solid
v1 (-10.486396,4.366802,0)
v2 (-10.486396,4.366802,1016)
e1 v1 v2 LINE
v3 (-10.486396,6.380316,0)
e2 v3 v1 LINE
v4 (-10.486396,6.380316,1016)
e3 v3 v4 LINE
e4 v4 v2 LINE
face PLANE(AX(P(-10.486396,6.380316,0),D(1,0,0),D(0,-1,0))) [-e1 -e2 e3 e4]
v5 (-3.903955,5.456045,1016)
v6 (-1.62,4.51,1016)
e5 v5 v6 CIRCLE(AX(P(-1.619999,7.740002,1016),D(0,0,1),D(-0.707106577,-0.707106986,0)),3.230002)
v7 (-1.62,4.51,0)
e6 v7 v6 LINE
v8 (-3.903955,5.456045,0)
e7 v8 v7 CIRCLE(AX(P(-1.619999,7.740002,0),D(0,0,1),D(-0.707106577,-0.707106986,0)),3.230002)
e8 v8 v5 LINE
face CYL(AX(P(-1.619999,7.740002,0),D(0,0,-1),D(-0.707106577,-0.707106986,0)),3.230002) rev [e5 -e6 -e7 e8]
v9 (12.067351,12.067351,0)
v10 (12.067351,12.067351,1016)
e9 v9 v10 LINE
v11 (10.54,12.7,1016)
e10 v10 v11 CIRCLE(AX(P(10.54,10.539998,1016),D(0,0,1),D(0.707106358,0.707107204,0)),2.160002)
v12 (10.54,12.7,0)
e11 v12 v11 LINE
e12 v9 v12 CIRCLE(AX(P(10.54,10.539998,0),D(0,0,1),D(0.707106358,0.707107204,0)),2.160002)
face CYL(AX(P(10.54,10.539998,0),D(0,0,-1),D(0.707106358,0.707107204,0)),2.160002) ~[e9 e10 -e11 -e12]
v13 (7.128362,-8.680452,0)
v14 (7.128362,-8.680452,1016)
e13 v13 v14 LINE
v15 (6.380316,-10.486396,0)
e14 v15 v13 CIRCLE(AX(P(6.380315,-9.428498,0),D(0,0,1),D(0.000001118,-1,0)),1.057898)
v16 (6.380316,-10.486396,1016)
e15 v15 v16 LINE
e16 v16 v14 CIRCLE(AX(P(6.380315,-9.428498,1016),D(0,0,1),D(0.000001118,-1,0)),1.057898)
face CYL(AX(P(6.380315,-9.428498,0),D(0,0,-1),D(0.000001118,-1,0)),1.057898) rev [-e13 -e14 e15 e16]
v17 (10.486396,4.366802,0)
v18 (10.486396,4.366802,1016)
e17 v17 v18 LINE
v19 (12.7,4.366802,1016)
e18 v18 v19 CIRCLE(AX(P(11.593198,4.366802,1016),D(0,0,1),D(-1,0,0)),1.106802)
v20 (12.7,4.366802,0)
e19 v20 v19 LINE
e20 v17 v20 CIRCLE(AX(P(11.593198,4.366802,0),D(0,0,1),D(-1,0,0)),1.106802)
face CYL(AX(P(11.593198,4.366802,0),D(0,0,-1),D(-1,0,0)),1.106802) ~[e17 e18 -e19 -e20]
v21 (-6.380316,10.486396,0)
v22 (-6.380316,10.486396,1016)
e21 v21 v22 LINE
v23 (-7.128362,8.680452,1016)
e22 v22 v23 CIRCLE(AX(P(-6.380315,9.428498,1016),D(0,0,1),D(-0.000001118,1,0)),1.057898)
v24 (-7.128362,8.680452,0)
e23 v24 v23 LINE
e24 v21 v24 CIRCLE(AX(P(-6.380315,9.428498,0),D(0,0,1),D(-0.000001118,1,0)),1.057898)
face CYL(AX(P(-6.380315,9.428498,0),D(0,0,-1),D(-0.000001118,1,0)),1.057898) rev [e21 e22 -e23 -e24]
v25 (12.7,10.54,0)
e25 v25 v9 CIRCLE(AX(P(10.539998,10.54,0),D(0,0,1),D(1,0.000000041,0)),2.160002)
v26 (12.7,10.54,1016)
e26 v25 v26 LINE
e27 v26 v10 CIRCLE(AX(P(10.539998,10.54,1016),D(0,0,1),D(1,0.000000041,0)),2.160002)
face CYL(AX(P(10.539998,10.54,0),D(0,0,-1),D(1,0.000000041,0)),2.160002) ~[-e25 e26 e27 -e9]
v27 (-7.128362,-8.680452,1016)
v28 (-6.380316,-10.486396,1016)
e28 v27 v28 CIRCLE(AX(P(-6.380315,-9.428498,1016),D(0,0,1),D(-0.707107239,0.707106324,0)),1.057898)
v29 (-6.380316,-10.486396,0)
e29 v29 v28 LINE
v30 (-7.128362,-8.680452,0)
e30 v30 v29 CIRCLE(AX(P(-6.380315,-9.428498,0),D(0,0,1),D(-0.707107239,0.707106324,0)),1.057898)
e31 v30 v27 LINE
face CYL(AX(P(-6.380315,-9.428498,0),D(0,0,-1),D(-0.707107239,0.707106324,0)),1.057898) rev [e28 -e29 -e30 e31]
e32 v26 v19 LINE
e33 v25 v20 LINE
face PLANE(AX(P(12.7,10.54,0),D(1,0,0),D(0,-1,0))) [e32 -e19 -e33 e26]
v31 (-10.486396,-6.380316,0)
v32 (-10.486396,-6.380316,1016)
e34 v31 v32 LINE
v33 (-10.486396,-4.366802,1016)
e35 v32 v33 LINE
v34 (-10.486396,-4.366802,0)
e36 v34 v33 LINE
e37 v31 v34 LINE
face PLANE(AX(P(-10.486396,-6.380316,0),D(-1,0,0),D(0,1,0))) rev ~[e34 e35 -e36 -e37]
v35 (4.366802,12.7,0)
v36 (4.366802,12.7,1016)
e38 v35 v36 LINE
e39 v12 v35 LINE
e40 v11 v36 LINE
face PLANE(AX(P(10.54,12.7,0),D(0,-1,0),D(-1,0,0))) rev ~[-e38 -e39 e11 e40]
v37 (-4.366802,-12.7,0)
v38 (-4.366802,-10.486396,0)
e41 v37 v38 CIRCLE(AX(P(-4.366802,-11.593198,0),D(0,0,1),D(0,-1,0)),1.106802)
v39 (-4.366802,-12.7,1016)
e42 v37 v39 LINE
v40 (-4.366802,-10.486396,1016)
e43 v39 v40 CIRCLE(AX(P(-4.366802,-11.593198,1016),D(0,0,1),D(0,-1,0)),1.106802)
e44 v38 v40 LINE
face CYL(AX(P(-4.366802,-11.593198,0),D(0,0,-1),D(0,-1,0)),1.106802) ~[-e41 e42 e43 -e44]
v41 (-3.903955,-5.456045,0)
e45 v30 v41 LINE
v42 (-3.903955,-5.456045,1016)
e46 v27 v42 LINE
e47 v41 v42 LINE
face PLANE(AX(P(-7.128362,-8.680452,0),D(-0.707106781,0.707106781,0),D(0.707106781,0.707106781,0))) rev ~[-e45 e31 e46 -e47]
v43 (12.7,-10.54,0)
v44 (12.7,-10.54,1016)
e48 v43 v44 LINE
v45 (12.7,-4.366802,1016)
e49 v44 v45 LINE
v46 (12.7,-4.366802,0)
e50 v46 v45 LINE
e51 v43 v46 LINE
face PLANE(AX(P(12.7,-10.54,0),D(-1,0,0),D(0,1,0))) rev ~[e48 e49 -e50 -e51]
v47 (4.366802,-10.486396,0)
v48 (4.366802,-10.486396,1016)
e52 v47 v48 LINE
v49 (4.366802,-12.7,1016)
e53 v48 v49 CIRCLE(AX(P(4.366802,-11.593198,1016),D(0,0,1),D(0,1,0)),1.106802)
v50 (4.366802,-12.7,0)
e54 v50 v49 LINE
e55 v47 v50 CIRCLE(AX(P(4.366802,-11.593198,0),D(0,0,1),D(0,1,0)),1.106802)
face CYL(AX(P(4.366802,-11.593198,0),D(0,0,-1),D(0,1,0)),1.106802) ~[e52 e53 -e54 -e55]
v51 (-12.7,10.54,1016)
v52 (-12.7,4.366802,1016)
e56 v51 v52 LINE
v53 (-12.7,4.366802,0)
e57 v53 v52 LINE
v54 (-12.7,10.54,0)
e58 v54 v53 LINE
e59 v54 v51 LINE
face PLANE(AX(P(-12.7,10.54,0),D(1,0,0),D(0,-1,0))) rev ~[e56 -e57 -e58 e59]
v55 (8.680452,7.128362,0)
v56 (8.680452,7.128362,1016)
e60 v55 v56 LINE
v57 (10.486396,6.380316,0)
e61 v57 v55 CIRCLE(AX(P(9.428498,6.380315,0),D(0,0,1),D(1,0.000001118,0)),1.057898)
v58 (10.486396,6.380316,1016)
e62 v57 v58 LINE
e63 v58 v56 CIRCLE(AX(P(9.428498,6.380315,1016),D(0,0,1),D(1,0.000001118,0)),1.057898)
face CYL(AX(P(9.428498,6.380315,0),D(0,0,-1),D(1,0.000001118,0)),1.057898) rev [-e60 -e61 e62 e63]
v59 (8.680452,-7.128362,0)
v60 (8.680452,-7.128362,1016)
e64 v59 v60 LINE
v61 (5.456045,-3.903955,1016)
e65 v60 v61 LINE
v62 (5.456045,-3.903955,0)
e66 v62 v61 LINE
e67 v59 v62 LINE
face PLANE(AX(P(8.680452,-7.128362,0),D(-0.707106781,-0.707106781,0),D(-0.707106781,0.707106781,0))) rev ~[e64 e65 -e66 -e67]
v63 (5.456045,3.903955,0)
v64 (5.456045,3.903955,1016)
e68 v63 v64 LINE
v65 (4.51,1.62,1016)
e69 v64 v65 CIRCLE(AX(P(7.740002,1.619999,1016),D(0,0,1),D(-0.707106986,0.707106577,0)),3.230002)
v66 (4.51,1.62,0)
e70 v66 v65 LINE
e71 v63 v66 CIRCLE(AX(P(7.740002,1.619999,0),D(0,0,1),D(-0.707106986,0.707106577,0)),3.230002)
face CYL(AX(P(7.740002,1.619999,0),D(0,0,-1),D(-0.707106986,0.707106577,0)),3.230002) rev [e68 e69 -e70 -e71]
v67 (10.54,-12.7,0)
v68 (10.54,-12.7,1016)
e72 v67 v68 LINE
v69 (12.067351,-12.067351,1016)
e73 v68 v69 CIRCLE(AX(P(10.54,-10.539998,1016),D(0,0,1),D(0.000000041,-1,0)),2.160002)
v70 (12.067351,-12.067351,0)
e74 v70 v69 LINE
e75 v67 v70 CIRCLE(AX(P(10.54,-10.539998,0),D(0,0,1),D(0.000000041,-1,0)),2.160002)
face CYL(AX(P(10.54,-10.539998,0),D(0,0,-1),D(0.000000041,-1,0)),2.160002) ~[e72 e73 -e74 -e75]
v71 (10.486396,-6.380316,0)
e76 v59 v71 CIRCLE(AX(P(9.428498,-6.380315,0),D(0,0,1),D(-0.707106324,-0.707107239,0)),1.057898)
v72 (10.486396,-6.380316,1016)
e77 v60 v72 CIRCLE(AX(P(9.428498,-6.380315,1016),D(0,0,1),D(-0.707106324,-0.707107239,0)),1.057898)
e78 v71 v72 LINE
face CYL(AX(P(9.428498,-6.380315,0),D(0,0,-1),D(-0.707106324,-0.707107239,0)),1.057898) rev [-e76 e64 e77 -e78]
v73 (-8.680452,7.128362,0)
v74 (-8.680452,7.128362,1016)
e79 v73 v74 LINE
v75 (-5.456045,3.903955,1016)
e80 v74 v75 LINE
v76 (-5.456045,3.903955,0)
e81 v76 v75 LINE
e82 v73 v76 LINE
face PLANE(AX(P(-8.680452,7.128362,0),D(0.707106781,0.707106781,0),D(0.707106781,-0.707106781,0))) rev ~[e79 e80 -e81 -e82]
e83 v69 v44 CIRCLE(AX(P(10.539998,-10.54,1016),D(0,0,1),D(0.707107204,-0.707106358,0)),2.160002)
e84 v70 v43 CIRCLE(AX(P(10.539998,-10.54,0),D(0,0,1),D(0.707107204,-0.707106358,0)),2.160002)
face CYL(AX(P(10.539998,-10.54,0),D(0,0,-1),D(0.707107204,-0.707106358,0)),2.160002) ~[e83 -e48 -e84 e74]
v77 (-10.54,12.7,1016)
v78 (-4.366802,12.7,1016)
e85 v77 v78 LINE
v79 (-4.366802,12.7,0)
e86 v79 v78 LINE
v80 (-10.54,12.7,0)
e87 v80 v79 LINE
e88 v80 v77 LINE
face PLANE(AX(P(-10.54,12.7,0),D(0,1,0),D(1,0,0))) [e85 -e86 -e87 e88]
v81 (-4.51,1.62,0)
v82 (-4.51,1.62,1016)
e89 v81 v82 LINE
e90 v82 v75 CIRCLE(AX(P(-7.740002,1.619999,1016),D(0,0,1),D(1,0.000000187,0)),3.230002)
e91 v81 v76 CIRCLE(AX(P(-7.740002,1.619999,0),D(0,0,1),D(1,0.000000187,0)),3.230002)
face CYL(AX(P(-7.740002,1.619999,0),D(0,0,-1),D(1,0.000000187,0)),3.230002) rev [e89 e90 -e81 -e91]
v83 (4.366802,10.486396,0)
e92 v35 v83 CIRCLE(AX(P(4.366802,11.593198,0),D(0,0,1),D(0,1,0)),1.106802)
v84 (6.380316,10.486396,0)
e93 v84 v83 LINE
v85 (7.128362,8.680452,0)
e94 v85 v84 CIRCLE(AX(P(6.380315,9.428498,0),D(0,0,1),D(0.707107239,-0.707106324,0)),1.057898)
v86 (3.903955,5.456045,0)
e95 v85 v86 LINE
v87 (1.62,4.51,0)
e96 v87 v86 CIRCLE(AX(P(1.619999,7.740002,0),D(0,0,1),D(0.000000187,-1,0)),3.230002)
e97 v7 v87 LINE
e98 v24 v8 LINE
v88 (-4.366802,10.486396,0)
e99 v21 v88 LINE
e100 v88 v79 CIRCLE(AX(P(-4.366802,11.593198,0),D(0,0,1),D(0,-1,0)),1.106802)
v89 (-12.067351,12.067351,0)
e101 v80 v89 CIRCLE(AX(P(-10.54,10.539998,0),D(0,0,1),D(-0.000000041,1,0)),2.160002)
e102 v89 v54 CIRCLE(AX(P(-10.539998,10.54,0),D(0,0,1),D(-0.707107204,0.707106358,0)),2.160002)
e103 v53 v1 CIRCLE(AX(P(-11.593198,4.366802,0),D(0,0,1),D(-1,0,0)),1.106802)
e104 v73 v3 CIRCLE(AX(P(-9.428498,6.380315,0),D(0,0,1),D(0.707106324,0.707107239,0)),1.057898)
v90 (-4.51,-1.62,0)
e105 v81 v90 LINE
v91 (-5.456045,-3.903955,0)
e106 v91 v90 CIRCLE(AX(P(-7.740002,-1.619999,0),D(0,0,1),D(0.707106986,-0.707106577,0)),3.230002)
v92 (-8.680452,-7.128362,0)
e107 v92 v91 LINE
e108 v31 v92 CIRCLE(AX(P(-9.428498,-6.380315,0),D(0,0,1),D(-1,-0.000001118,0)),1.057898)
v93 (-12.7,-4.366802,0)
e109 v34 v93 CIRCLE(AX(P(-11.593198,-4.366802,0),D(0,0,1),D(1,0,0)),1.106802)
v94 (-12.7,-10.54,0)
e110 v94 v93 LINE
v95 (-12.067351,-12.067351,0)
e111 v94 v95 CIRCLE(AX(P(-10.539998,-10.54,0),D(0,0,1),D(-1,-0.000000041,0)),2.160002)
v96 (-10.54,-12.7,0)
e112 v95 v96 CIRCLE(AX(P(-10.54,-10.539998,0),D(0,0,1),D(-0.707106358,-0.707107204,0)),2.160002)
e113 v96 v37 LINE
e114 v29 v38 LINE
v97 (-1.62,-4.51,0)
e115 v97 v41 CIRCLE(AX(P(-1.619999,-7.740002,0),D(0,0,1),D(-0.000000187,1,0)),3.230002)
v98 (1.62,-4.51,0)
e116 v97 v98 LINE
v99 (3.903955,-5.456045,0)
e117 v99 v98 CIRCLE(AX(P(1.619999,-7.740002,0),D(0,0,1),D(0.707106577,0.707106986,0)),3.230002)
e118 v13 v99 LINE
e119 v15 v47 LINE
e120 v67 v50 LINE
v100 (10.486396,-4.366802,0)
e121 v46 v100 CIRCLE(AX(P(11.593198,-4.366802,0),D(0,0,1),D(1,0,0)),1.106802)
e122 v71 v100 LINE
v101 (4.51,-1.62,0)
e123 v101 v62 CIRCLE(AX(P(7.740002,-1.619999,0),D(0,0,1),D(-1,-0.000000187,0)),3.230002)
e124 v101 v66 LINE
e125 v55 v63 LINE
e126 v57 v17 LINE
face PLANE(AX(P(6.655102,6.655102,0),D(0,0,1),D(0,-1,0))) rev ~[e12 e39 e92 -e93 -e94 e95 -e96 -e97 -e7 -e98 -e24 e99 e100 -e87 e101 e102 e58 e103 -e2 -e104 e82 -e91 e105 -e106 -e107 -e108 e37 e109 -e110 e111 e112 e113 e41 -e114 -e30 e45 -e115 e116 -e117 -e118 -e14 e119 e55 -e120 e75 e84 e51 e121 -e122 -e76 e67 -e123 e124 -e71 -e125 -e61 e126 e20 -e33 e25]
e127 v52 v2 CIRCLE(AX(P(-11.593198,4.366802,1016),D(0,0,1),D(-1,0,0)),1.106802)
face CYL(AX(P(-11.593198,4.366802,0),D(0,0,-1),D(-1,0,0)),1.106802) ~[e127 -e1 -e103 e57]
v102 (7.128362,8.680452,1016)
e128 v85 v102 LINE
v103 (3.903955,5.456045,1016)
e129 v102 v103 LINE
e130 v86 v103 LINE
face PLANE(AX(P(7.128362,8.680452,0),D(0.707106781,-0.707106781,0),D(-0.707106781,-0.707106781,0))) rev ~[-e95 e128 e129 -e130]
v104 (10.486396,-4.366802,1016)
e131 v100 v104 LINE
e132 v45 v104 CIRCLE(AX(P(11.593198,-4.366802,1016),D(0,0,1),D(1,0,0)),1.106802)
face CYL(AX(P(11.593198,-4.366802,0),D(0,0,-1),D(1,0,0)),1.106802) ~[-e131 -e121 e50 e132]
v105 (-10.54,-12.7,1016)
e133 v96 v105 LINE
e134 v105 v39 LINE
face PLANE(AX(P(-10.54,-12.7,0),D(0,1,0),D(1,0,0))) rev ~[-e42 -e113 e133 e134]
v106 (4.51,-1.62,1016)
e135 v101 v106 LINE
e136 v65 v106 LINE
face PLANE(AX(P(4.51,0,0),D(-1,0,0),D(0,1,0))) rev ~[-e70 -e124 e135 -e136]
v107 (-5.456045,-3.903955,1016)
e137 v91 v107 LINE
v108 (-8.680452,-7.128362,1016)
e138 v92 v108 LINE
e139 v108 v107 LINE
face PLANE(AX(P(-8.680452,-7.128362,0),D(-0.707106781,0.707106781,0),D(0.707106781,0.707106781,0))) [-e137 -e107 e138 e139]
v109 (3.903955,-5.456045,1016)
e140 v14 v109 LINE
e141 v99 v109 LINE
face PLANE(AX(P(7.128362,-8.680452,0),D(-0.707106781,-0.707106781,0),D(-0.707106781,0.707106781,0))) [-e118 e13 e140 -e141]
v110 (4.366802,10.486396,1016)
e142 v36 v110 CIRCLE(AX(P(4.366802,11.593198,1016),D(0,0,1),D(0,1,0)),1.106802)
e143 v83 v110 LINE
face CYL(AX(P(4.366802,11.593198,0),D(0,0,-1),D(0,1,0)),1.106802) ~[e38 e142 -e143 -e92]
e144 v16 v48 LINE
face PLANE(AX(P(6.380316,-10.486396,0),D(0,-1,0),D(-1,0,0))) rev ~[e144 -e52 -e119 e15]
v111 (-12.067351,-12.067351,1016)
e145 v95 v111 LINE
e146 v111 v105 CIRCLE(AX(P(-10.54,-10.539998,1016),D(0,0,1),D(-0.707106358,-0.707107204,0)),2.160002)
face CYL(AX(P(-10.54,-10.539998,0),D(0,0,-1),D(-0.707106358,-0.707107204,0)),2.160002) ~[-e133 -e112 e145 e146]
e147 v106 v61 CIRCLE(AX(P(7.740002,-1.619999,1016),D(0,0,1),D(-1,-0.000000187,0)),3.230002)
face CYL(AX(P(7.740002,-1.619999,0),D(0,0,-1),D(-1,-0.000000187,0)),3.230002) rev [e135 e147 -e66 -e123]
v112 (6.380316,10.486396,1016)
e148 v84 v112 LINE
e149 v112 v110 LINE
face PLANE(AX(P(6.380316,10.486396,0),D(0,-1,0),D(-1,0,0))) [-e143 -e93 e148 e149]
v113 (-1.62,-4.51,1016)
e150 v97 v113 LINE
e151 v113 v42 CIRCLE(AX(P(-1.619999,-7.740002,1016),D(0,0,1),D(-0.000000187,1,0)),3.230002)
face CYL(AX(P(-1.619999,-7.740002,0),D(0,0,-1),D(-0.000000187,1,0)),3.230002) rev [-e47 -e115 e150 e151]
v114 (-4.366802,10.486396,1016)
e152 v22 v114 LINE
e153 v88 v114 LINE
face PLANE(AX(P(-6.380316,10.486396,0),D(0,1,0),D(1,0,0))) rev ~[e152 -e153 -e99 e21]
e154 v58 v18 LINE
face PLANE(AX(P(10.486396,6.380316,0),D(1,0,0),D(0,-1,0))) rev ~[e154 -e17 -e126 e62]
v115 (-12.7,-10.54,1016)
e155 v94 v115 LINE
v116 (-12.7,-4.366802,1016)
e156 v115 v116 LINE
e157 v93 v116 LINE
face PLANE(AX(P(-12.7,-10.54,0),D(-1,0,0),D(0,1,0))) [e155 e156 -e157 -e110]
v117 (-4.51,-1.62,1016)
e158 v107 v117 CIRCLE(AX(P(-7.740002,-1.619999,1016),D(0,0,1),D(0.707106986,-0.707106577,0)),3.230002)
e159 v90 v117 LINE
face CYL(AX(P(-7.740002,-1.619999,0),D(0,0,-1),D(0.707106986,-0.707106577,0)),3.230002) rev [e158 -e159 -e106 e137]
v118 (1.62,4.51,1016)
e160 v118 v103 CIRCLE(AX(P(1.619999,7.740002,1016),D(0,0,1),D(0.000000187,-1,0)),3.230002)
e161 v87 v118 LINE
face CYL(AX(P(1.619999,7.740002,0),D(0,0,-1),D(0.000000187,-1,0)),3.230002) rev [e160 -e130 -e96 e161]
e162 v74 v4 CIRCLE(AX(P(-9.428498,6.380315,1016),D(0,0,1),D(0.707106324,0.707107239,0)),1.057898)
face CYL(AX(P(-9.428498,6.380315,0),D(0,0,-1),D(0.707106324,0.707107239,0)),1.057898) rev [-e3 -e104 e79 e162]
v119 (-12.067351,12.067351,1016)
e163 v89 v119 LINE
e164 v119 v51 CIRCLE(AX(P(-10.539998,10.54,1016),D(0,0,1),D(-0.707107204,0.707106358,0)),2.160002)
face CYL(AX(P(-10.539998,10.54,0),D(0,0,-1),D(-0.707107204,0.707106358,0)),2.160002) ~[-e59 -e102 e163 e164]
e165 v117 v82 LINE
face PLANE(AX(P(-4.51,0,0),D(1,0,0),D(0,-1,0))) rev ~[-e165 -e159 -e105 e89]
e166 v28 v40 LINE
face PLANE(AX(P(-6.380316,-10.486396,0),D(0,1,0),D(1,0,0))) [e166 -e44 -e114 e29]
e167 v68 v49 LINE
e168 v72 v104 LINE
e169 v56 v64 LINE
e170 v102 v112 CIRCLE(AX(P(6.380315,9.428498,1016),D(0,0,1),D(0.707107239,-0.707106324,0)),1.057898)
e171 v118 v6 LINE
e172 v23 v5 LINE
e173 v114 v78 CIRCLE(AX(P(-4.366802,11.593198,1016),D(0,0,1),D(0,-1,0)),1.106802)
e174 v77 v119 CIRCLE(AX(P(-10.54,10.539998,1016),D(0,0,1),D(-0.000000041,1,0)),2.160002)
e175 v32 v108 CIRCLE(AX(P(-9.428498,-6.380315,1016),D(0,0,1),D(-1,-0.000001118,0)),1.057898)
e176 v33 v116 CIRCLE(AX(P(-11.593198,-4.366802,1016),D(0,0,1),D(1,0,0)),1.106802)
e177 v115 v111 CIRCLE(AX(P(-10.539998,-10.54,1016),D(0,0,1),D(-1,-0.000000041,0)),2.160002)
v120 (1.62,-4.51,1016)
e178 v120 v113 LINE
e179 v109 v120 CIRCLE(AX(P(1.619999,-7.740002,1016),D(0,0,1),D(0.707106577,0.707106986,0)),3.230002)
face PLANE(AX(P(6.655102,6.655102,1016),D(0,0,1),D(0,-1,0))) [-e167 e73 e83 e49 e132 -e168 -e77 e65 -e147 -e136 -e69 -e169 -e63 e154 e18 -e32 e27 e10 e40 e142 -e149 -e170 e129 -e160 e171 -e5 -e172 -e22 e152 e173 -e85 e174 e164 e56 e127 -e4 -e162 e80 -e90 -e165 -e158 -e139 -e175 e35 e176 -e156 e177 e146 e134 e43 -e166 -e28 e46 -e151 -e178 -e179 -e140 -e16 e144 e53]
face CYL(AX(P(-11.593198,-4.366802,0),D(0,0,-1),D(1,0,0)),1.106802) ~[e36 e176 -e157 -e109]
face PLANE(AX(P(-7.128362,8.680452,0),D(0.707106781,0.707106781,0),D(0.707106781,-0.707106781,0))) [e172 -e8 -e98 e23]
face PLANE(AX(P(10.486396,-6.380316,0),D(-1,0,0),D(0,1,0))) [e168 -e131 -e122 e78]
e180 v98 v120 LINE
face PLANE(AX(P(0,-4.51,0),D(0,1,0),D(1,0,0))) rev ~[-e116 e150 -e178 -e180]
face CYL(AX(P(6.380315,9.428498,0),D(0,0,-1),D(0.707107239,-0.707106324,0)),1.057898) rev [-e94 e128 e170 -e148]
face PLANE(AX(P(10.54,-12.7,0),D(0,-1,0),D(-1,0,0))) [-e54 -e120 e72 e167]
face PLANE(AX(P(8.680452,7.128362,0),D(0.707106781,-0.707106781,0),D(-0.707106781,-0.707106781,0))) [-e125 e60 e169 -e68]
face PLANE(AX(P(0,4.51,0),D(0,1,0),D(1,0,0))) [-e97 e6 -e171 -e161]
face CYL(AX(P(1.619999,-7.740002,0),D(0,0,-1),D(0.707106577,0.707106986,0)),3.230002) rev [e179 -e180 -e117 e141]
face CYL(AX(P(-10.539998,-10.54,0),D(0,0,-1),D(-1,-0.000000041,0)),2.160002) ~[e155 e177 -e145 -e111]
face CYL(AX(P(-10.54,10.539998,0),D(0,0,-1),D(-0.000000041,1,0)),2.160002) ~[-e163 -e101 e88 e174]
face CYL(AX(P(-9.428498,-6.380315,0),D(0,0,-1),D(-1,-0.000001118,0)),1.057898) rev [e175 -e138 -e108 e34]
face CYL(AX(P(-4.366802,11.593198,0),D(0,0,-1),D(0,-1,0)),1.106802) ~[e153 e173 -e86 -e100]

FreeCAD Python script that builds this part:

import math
import FreeCAD as App
import Part
import Sketcher
from FreeCAD import Vector
Q = App.Units.Quantity

doc = App.newDocument("Part")
body = doc.addObject("PartDesign::Body", "Body")

# Sketch on XY plane
sketch1 = body.newObject("Sketcher::SketchObject", "Sketch")
sketch1.AttachmentSupport = (doc.getObject("XY_Plane"), [""])
sketch1.MapMode = "FlatFace"
sketch1.addGeometry([
    Part.LineSegment(Vector(0, 4.51, 0), Vector(-1.62, 4.51, 0)),  # 0
    Part.ArcOfCircle(Part.Circle(Vector(-1.619999, 7.740002, 0), Vector(0, 0, 1), 3.230002), math.radians(-134.999983), math.radians(-90.000011)),  # 1
    Part.LineSegment(Vector(-3.903955, 5.456045, 0), Vector(-7.128362, 8.680452, 0)),  # 2
    Part.ArcOfCircle(Part.Circle(Vector(-6.380315, 9.428498, 0), Vector(0, 0, 1), 1.057898), math.radians(90.000064), math.radians(224.999963)),  # 3
    Part.LineSegment(Vector(-6.380316, 10.486396, 0), Vector(-4.366802, 10.486396, 0)),  # 4
    Part.ArcOfCircle(Part.Circle(Vector(-4.366802, 11.593198, 0), Vector(0, 0, 1), 1.106802), math.radians(-90), math.radians(90)),  # 5
    Part.LineSegment(Vector(-4.366802, 12.7, 0), Vector(-10.54, 12.7, 0)),  # 6
    Part.ArcOfCircle(Part.Circle(Vector(-10.54, 10.539998, 0), Vector(0, 0, 1), 2.160002), math.radians(90.000002), math.radians(134.999966)),  # 7
    Part.ArcOfCircle(Part.Circle(Vector(-10.539998, 10.54, 0), Vector(0, 0, 1), 2.160002), math.radians(135.000034), math.radians(179.999998)),  # 8
    Part.LineSegment(Vector(-12.7, 10.54, 0), Vector(-12.7, 4.366802, 0)),  # 9
    Part.ArcOfCircle(Part.Circle(Vector(-11.593198, 4.366802, 0), Vector(0, 0, 1), 1.106802), math.radians(180), math.radians(360)),  # 10
    Part.LineSegment(Vector(-10.486396, 4.366802, 0), Vector(-10.486396, 6.380316, 0)),  # 11
    Part.ArcOfCircle(Part.Circle(Vector(-9.428498, 6.380315, 0), Vector(0, 0, 1), 1.057898), math.radians(45.000037), math.radians(179.999936)),  # 12
    Part.LineSegment(Vector(-8.680452, 7.128362, 0), Vector(-5.456045, 3.903955, 0)),  # 13
    Part.ArcOfCircle(Part.Circle(Vector(-7.740002, 1.619999, 0), Vector(0, 0, 1), 3.230002), math.radians(0.000011), math.radians(44.999983)),  # 14
    Part.LineSegment(Vector(-4.51, 1.62, 0), Vector(-4.51, 0, 0)),  # 15
    Part.LineSegment(Vector(-4.51, 0, 0), Vector(0, 0, 0)),  # 16
    Part.LineSegment(Vector(0, 0, 0), Vector(0, 4.51, 0)),  # 17
], False)
sketch1.addConstraint([
    Sketcher.Constraint("Tangent", 0, 2, 1, 2),
    Sketcher.Constraint("Tangent", 1, 1, 2, 1),
    Sketcher.Constraint("Tangent", 2, 2, 3, 2),
    Sketcher.Constraint("Tangent", 3, 1, 4, 1),
    Sketcher.Constraint("Tangent", 4, 2, 5, 1),
    Sketcher.Constraint("Tangent", 5, 2, 6, 1),
    Sketcher.Constraint("Tangent", 6, 2, 7, 1),
    Sketcher.Constraint("Tangent", 7, 2, 8, 1),
    Sketcher.Constraint("Tangent", 8, 2, 9, 1),
    Sketcher.Constraint("Tangent", 9, 2, 10, 1),
    Sketcher.Constraint("Tangent", 10, 2, 11, 1),
    Sketcher.Constraint("Tangent", 11, 2, 12, 2),
    Sketcher.Constraint("Tangent", 12, 1, 13, 1),
    Sketcher.Constraint("Tangent", 13, 2, 14, 2),
    Sketcher.Constraint("Tangent", 14, 1, 15, 1),
    Sketcher.Constraint("Coincident", 15, 2, 16, 1),
    Sketcher.Constraint("Coincident", 16, 2, 17, 1),
    Sketcher.Constraint("Coincident", 17, 2, 0, 1),
    Sketcher.Constraint("Horizontal", 0),
    Sketcher.Constraint("Horizontal", 4),
    Sketcher.Constraint("Horizontal", 6),
    Sketcher.Constraint("Vertical", 9),
    Sketcher.Constraint("Vertical", 11),
    Sketcher.Constraint("Vertical", 15),
    Sketcher.Constraint("Horizontal", 16),
    Sketcher.Constraint("Vertical", 17),
    Sketcher.Constraint("Coincident", 16, 2, -1, 1),
    Sketcher.Constraint("Equal", 7, 8),
    Sketcher.Constraint("Equal", 5, 10),
    Sketcher.Constraint("Equal", 3, 12),
    Sketcher.Constraint("Equal", 1, 14),
    Sketcher.Constraint("Parallel", 2, 13),
    Sketcher.Constraint("Equal", 6, 9),
    Sketcher.Constraint("Equal", 4, 11),
    Sketcher.Constraint("Equal", 0, 15),
    Sketcher.Constraint("Equal", 16, 17),
    Sketcher.Constraint("Equal", 2, 13),
    Sketcher.Constraint("DistanceY", -1, 1, 5, 2, Q("0.5 in")),
    Sketcher.Constraint("Radius", 1, Q("3.230002 mm")),
    Sketcher.Constraint("Radius", 7, Q("2.160002 mm")),
    Sketcher.Constraint("DistanceX", 0, 2, 0, 1, Q("1.62 mm")),
    Sketcher.Constraint("DistanceX", 16, 1, 16, 2, Q("4.51 mm")),
    Sketcher.Constraint("Radius", 3, Q("1.057898 mm")),
    Sketcher.Constraint("Radius", 5, Q("1.106802 mm")),
    Sketcher.Constraint("DistanceY", 10, 3, 1, 3, Q("3.3732 mm")),
    Sketcher.Constraint("DistanceY", 2, 2, 7, 2, Q("3.386899 mm")),
])
pad1 = body.newObject("PartDesign::Pad", "Pad")
pad1.Profile = sketch1
pad1.Length = Q("40 in")
doc.recompute()

polarpattern = body.newObject("PartDesign::PolarPattern", "PolarPattern")
polarpattern.Originals = [pad1]
polarpattern.Axis = (doc.getObject("Z_Axis"), [""])
polarpattern.Angle = 360
polarpattern.Occurrences = 4
body.Tip = polarpattern

doc.recompute()
